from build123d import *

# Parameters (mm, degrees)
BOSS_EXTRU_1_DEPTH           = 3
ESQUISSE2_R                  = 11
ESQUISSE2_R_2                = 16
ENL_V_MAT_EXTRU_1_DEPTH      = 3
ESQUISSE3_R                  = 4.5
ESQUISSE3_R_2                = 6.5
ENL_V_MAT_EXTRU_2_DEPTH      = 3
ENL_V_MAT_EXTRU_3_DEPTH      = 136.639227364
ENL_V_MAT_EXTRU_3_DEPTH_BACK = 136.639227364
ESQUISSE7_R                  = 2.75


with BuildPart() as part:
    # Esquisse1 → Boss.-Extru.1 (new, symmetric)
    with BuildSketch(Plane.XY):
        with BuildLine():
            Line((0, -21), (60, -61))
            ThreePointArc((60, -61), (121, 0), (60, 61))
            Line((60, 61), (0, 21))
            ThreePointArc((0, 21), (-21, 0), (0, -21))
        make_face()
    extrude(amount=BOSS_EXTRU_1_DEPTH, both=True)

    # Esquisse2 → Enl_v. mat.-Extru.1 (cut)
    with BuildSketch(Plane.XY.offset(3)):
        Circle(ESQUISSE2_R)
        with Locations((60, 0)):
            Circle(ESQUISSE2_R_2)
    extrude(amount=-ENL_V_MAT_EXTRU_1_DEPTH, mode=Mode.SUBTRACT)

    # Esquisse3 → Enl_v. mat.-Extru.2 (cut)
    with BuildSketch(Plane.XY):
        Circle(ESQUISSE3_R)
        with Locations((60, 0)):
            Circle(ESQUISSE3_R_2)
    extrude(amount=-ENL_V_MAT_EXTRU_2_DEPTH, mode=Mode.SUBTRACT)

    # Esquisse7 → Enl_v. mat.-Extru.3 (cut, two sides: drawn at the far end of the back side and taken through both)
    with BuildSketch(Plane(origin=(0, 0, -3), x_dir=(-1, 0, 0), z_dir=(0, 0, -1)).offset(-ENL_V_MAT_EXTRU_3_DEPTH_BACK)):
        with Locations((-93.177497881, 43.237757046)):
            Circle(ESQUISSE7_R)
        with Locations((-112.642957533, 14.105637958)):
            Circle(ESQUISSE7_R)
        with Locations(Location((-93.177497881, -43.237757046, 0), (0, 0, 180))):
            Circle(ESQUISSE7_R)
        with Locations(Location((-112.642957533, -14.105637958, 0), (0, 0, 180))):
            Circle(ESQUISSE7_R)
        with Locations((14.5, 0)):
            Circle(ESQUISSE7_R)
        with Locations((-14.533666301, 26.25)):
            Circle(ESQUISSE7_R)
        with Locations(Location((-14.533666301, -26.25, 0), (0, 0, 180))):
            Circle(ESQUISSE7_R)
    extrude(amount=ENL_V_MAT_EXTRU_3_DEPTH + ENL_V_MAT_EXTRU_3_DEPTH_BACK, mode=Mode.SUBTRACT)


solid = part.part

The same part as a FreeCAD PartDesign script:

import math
import FreeCAD as App
import Part
import Sketcher

V = App.Vector

doc = App.newDocument("Part")
body = doc.addObject("PartDesign::Body", "Body")

sketch1 = body.newObject("Sketcher::SketchObject", "Sketch")
sketch1.AttachmentSupport = (doc.getObject("XY_Plane"), [""])
sketch1.MapMode = "FlatFace"
sketch1.addGeometry([
    Part.LineSegment(V(0, -21, 0), V(60, -61, 0)),
    Part.ArcOfCircle(Part.Circle(V(60, 0, 0), V(0, 0, 1), 61), math.radians(-90), math.radians(90)),
    Part.LineSegment(V(60, 61, 0), V(0, 21, 0)),
    Part.ArcOfCircle(Part.Circle(V(0, 0, 0), V(0, 0, 1), 21), math.radians(90), math.radians(270)),
], False)
sketch1.addConstraint([
    Sketcher.Constraint("Coincident", 0, 2, 1, 1),
    Sketcher.Constraint("Coincident", 1, 2, 2, 1),
    Sketcher.Constraint("Coincident", 2, 2, 3, 1),
    Sketcher.Constraint("Coincident", 3, 2, 0, 1),
    Sketcher.Constraint("Coincident", 3, 3, -1, 1),
    Sketcher.Constraint("Symmetric", 0, 2, 1, 2, -1),
    Sketcher.Constraint("PointOnObject", 2, 2, -2),
    Sketcher.Constraint("PointOnObject", 3, 2, -2),
    Sketcher.Constraint("Vertical", 1, 3, 0, 2),
    Sketcher.Constraint("Radius", 1, 61.0),
    Sketcher.Constraint("Radius", 3, 21.0),
    Sketcher.Constraint("DistanceX", -1, 1, 1, 3, 60.0),
])
pad1 = body.newObject("PartDesign::Pad", "Pad")
pad1.Profile = sketch1
pad1.Length = 6
pad1.Midplane = True

sketch2 = body.newObject("Sketcher::SketchObject", "Sketch001")
sketch2.AttachmentSupport = (doc.getObject("XY_Plane"), [""])
sketch2.MapMode = "FlatFace"
sketch2.AttachmentOffset = App.Placement(V(0, 0, 3), App.Rotation())
sketch2.addGeometry([
    Part.Circle(V(0, 0, 0), V(0, 0, 1), 11),
    Part.Circle(V(60, 0, 0), V(0, 0, 1), 16),
], False)
sketch2.addConstraint([
    Sketcher.Constraint("Coincident", 0, 3, -1, 1),
    Sketcher.Constraint("PointOnObject", 1, 3, -1),
    Sketcher.Constraint("Diameter", 0, 22.0),
    Sketcher.Constraint("Diameter", 1, 32.0),
    Sketcher.Constraint("DistanceX", -1, 1, 1, 3, 60.0),
])
pocket1 = body.newObject("PartDesign::Pocket", "Pocket")
pocket1.Profile = sketch2
pocket1.Length = 3

sketch3 = body.newObject("Sketcher::SketchObject", "Sketch002")
sketch3.AttachmentSupport = (doc.getObject("XY_Plane"), [""])
sketch3.MapMode = "FlatFace"
sketch3.addGeometry([
    Part.Circle(V(0, 0, 0), V(0, 0, 1), 4.5),
    Part.Circle(V(60, 0, 0), V(0, 0, 1), 6.5),
], False)
sketch3.addConstraint([
    Sketcher.Constraint("Coincident", 0, 3, -1, 1),
    Sketcher.Constraint("PointOnObject", 1, 3, -1),
    Sketcher.Constraint("Diameter", 0, 9.0),
    Sketcher.Constraint("Diameter", 1, 13.0),
    Sketcher.Constraint("DistanceX", -1, 1, 1, 3, 60.0),
])
pocket2 = body.newObject("PartDesign::Pocket", "Pocket001")
pocket2.Profile = sketch3
pocket2.Length = 3

sketch4 = body.newObject("Sketcher::SketchObject", "Sketch003")
sketch4.AttachmentSupport = (doc.getObject("XY_Plane"), [""])
sketch4.MapMode = "FlatFace"
sketch4.AttachmentOffset = App.Placement(V(0, 0, -3), App.Rotation())
sketch4.addGeometry([
    Part.Circle(V(93.2, 43.2, 0), V(0, 0, 1), 2.8),
    Part.Circle(V(112.6, 14.1, 0), V(0, 0, 1), 2.8),
    Part.Circle(V(93.2, -43.2, 0), V(0, 0, 1), 2.8),
    Part.Circle(V(112.6, -14.1, 0), V(0, 0, 1), 2.8),
    Part.Circle(V(-14.5, 0, 0), V(0, 0, 1), 2.8),
    Part.Circle(V(14.5, 26.2, 0), V(0, 0, 1), 2.8),
    Part.Circle(V(14.5, -26.2, 0), V(0, 0, 1), 2.8),
], False)
sketch4.addConstraint([
    Sketcher.Constraint("Equal", 0, 1),
    Sketcher.Constraint("Equal", 1, 2),
    Sketcher.Constraint("Equal", 2, 3),
    Sketcher.Constraint("Equal", 3, 4),
    Sketcher.Constraint("Equal", 4, 5),
    Sketcher.Constraint("Equal", 5, 6),
    Sketcher.Constraint("Symmetric", 0, 3, 2, 3, -1),
    Sketcher.Constraint("Symmetric", 1, 3, 3, 3, -1),
    Sketcher.Constraint("Symmetric", 5, 3, 6, 3, -1),
    Sketcher.Constraint("PointOnObject", 4, 3, -1),
    Sketcher.Constraint("Diameter", 0, 5.5),
    Sketcher.Constraint("DistanceX", 4, 3, -1, 1, 14.5),
    Sketcher.Constraint("DistanceY", 6, 3, 5, 3, 52.5),
    Sketcher.Constraint("DistanceX", 0, 3, 1, 3, 19.46546),
    Sketcher.Constraint("DistanceY", 1, 3, 0, 3, 29.132119),
    Sketcher.Constraint("DistanceX", 5, 3, 0, 3, 78.643832),
    Sketcher.Constraint("DistanceX", -1, 1, 0, 3, 93.177498),
    Sketcher.Constraint("DistanceY", -1, 1, 0, 3, 43.237757),
])
pocket3 = body.newObject("PartDesign::Pocket", "Pocket002")
pocket3.Profile = sketch4
pocket3.Type = "ThroughAll"
pocket3.Midplane = True

doc.recompute()
